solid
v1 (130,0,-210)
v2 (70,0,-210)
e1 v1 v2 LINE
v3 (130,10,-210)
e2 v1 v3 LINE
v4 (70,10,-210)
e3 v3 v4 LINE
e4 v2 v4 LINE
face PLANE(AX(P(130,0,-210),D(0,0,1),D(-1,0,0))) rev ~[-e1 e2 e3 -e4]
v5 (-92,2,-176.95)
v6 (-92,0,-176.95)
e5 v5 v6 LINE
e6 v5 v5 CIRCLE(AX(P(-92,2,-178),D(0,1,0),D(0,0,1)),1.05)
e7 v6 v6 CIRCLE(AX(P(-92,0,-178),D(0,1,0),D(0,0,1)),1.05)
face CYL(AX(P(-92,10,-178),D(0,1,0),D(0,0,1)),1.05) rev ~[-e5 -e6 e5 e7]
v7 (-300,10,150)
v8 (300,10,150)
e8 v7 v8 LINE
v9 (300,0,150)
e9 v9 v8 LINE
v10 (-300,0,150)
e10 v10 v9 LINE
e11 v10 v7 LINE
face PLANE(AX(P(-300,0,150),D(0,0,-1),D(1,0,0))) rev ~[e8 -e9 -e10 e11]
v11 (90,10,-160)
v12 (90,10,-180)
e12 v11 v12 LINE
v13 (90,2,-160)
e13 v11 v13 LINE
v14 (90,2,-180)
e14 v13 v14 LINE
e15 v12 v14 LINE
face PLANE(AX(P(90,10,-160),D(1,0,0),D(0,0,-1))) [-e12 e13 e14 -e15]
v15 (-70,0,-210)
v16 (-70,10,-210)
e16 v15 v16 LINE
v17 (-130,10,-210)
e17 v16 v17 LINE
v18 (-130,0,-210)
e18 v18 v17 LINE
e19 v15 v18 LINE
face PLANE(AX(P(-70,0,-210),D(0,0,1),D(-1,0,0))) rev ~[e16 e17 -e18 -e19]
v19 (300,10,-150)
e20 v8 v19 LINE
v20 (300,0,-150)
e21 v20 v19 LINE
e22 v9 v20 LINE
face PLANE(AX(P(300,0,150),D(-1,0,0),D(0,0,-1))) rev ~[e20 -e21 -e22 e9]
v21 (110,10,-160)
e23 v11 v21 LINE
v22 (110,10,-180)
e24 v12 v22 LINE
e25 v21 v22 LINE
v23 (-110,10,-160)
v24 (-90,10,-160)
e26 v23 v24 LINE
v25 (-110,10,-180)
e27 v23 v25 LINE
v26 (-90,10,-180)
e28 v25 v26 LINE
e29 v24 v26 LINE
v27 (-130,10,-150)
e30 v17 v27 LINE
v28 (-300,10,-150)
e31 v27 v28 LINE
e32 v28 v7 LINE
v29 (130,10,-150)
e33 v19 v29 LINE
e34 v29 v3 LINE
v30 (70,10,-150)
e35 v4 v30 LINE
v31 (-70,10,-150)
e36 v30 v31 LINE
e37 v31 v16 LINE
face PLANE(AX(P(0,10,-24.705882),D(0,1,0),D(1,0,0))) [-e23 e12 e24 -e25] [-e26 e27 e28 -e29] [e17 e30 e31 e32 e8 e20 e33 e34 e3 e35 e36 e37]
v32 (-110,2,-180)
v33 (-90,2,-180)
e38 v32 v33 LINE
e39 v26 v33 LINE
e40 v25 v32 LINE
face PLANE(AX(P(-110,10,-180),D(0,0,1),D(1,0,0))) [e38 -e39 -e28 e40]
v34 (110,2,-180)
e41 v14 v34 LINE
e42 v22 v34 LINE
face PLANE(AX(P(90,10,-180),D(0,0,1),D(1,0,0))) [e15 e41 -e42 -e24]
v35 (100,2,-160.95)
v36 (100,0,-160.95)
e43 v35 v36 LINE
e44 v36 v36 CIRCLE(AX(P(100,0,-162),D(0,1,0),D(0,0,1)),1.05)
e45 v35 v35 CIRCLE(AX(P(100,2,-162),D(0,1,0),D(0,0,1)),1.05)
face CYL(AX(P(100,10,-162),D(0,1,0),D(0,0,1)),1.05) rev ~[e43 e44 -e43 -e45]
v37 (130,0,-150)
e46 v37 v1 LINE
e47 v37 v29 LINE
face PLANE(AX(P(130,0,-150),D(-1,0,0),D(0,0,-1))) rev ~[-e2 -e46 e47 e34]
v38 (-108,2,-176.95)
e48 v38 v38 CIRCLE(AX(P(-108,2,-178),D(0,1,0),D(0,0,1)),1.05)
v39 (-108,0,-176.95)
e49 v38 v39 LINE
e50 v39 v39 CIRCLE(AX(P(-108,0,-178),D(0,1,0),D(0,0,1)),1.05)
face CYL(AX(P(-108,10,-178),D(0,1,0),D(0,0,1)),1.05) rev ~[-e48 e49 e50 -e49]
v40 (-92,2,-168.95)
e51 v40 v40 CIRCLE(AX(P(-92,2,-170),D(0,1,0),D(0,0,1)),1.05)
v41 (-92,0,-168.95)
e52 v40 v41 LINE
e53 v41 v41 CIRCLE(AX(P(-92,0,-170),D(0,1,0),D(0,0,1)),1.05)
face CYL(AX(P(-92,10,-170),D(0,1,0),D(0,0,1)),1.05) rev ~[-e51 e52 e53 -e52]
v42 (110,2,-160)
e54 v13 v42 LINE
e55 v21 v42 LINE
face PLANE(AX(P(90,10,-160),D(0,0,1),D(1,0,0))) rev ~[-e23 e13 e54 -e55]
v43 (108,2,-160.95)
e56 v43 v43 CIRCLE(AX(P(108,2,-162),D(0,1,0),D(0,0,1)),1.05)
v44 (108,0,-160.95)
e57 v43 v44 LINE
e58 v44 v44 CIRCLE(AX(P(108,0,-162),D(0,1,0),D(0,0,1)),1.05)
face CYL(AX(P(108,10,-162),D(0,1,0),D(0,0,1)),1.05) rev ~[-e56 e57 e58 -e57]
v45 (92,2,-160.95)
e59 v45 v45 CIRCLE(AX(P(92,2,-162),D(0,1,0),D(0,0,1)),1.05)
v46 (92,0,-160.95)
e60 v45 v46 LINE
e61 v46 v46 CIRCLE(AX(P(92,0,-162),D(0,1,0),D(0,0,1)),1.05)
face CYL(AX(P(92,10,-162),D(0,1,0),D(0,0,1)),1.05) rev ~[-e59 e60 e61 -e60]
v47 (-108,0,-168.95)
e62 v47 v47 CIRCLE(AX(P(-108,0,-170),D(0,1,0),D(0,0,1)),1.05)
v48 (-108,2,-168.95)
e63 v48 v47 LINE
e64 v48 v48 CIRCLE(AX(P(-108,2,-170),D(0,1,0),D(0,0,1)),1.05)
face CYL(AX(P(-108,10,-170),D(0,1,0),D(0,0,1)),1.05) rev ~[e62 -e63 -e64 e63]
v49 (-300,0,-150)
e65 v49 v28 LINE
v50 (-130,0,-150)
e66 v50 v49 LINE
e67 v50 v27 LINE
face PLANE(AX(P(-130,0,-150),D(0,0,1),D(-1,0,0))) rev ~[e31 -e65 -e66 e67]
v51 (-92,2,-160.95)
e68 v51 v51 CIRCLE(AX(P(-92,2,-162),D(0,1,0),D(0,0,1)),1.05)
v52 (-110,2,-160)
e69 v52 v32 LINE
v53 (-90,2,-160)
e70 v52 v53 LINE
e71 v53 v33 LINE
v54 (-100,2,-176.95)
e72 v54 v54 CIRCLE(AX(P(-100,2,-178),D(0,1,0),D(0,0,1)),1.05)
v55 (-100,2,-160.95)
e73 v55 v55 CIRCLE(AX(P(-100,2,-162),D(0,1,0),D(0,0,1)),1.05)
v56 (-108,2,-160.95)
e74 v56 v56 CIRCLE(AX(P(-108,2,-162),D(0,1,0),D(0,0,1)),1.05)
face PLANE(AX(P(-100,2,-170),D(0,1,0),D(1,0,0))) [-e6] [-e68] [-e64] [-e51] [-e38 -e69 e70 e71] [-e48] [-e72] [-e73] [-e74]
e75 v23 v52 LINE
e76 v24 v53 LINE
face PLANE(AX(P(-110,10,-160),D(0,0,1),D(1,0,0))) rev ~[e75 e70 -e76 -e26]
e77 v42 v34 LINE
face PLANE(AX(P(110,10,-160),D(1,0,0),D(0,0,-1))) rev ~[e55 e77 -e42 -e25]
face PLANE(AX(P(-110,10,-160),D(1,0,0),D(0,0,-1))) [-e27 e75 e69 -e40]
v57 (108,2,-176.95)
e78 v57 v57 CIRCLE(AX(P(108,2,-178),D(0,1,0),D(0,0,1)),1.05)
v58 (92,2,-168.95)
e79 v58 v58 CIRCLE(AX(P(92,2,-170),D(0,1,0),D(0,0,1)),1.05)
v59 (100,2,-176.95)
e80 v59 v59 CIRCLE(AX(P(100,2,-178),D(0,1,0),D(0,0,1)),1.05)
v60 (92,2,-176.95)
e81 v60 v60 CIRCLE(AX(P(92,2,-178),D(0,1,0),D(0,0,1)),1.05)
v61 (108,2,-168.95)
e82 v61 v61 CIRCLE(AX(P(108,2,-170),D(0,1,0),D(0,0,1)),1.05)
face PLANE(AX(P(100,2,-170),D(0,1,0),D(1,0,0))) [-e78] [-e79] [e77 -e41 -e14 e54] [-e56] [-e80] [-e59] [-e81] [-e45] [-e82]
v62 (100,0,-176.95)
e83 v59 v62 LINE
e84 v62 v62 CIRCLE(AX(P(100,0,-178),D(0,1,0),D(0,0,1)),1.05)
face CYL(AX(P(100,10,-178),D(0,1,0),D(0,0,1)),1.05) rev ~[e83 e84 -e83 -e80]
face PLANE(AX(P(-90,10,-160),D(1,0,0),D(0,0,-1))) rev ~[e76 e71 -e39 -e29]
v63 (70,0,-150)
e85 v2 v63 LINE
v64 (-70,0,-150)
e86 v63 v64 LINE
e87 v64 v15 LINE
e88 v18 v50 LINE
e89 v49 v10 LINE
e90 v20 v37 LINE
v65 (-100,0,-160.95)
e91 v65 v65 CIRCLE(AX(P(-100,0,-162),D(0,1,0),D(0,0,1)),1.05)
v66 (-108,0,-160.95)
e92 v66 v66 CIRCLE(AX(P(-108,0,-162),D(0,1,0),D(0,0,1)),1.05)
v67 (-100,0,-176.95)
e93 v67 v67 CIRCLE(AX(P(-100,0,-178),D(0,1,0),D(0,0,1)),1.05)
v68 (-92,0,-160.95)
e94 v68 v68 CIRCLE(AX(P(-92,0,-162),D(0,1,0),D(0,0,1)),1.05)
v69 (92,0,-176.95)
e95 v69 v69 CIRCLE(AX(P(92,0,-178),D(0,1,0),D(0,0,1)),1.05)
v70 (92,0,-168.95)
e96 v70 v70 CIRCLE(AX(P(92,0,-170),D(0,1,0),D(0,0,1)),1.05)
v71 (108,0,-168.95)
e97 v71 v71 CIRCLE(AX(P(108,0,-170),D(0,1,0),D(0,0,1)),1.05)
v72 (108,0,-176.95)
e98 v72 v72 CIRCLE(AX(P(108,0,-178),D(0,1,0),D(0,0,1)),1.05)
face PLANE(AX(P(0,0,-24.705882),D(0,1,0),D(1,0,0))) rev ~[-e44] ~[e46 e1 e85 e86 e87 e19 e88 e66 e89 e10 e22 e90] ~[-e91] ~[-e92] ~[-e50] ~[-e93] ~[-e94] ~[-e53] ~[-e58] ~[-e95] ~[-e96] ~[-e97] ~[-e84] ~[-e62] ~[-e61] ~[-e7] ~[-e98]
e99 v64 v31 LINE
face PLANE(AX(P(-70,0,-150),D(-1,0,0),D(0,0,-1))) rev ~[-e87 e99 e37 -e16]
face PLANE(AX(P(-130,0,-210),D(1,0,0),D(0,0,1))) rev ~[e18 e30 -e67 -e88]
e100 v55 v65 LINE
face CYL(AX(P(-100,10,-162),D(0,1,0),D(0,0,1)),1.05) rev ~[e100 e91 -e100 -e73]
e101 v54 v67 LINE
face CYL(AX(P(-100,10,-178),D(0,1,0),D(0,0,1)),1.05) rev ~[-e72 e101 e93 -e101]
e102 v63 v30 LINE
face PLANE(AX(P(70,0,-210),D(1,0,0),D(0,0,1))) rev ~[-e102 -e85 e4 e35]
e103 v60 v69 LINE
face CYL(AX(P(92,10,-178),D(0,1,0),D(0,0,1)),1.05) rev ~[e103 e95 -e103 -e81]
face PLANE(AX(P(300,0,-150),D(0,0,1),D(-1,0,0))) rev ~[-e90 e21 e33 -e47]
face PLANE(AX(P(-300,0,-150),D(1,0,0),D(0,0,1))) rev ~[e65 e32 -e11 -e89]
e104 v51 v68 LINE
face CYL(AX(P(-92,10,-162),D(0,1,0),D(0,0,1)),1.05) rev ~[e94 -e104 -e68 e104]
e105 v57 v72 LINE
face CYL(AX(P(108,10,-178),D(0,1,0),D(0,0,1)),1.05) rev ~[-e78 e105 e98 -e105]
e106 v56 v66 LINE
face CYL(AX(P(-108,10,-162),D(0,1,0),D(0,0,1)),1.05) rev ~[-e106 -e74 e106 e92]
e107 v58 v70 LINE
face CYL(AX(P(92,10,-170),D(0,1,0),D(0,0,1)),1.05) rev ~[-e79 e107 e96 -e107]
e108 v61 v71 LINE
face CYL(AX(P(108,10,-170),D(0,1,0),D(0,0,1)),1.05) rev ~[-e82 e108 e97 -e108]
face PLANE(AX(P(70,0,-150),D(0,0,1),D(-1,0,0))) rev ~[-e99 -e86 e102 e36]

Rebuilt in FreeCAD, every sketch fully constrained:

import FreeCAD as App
import Part
import Sketcher

V = App.Vector
Q = App.Units.Quantity


def add_polygon(sketch, points):
    """Adds a closed chain of lines whose ends are joined by coincident constraints."""
    first, n = sketch.GeometryCount, len(points)
    for a, b in zip(points, points[1:] + points[:1]):
        sketch.addGeometry(Part.LineSegment(App.Vector(*a, 0), App.Vector(*b, 0)), False)
    for i in range(n):
        sketch.addConstraint(Sketcher.Constraint("Coincident", first + i, 2, first + (i + 1) % n, 1))

doc = App.newDocument("Part")
body = doc.addObject("PartDesign::Body", "Body")

sketch1 = body.newObject("Sketcher::SketchObject", "Sketch")
sketch1.AttachmentSupport = (doc.getObject("XZ_Plane"), [""])
sketch1.MapMode = "FlatFace"
add_polygon(sketch1, [(-300, 150), (300, 150), (300, -150), (130, -150), (130, -210), (70, -210), (70, -150), (-70, -150), (-70, -210), (-130, -210), (-130, -150), (-300, -150)])
sketch1.addConstraint([
    Sketcher.Constraint("Horizontal", 0),
    Sketcher.Constraint("Vertical", 1),
    Sketcher.Constraint("Horizontal", 2),
    Sketcher.Constraint("Vertical", 3),
    Sketcher.Constraint("Horizontal", 4),
    Sketcher.Constraint("Vertical", 5),
    Sketcher.Constraint("Horizontal", 6),
    Sketcher.Constraint("Vertical", 7),
    Sketcher.Constraint("Horizontal", 8),
    Sketcher.Constraint("Vertical", 9),
    Sketcher.Constraint("Horizontal", 10),
    Sketcher.Constraint("Vertical", 11),
    Sketcher.Constraint("Symmetric", 0, 2, 10, 2, -1, 1),
    Sketcher.Constraint("Symmetric", 4, 2, 7, 2, -2),
    Sketcher.Constraint("Symmetric", 2, 2, 9, 2, -2),
    Sketcher.Constraint("Horizontal", 2, 2, 5, 2),
    Sketcher.Constraint("Equal", 8, 3),
    Sketcher.Constraint("DistanceX", 0, 1, 0, 2, Q("600 mm")),
    Sketcher.Constraint("DistanceX", 2, 2, 2, 1, Q("170 mm")),
    Sketcher.Constraint("DistanceX", 4, 2, 4, 1, Q("60 mm")),
    Sketcher.Constraint("DistanceY", 1, 2, 1, 1, Q("300 mm")),
])
pad1 = body.newObject("PartDesign::Pad", "Pad")
pad1.Profile = sketch1
pad1.Length = 10
pad1.Reversed = True

sketch2 = body.newObject("Sketcher::SketchObject", "Sketch001")
sketch2.AttachmentSupport = (doc.getObject("XZ_Plane"), [""])
sketch2.MapMode = "FlatFace"
sketch2.AttachmentOffset = App.Placement(V(0, 0, -10), App.Rotation())
add_polygon(sketch2, [(-110, -180), (-110, -160), (-90, -160), (-90, -180)])
sketch2.addGeometry(Part.Circle(V(-108, -162, 0), V(0, 0, 1), 1.05), False)
sketch2.addGeometry(Part.Circle(V(-100, -162, 0), V(0, 0, 1), 1.05), False)
sketch2.addGeometry(Part.Circle(V(-92, -162, 0), V(0, 0, 1), 1.05), False)
sketch2.addGeometry(Part.Circle(V(-108, -170, 0), V(0, 0, 1), 1.05), False)
sketch2.addGeometry(Part.Circle(V(-108, -178, 0), V(0, 0, 1), 1.05), False)
sketch2.addGeometry(Part.Circle(V(-92, -170, 0), V(0, 0, 1), 1.05), False)
sketch2.addGeometry(Part.Circle(V(-100, -178, 0), V(0, 0, 1), 1.05), False)
sketch2.addGeometry(Part.Circle(V(-92, -178, 0), V(0, 0, 1), 1.05), False)
add_polygon(sketch2, [(90, -180), (90, -160), (110, -160), (110, -180)])
sketch2.addGeometry(Part.Circle(V(92, -162, 0), V(0, 0, 1), 1.05), False)
sketch2.addGeometry(Part.Circle(V(100, -162, 0), V(0, 0, 1), 1.05), False)
sketch2.addGeometry(Part.Circle(V(108, -162, 0), V(0, 0, 1), 1.05), False)
sketch2.addGeometry(Part.Circle(V(92, -170, 0), V(0, 0, 1), 1.05), False)
sketch2.addGeometry(Part.Circle(V(92, -178, 0), V(0, 0, 1), 1.05), False)
sketch2.addGeometry(Part.Circle(V(108, -170, 0), V(0, 0, 1), 1.05), False)
sketch2.addGeometry(Part.Circle(V(100, -178, 0), V(0, 0, 1), 1.05), False)
sketch2.addGeometry(Part.Circle(V(108, -178, 0), V(0, 0, 1), 1.05), False)
sketch2.addConstraint([
    Sketcher.Constraint("Vertical", 0),
    Sketcher.Constraint("Horizontal", 1),
    Sketcher.Constraint("Vertical", 2),
    Sketcher.Constraint("Horizontal", 3),
    Sketcher.Constraint("Vertical", 12),
    Sketcher.Constraint("Horizontal", 13),
    Sketcher.Constraint("Vertical", 14),
    Sketcher.Constraint("Horizontal", 15),
    Sketcher.Constraint("Equal", 4, 5),
    Sketcher.Constraint("Equal", 5, 6),
    Sketcher.Constraint("Equal", 6, 7),
    Sketcher.Constraint("Equal", 7, 8),
    Sketcher.Constraint("Equal", 8, 9),
    Sketcher.Constraint("Equal", 9, 10),
    Sketcher.Constraint("Equal", 10, 11),
    Sketcher.Constraint("Equal", 11, 16),
    Sketcher.Constraint("Equal", 16, 17),
    Sketcher.Constraint("Equal", 17, 18),
    Sketcher.Constraint("Equal", 18, 19),
    Sketcher.Constraint("Equal", 19, 20),
    Sketcher.Constraint("Equal", 20, 21),
    Sketcher.Constraint("Equal", 21, 22),
    Sketcher.Constraint("Equal", 22, 23),
    Sketcher.Constraint("Symmetric", 6, 3, 16, 3, -2),
    Sketcher.Constraint("Symmetric", 5, 3, 17, 3, -2),
    Sketcher.Constraint("Symmetric", 4, 3, 18, 3, -2),
    Sketcher.Constraint("Symmetric", 9, 3, 19, 3, -2),
    Sketcher.Constraint("Symmetric", 11, 3, 20, 3, -2),
    Sketcher.Constraint("Symmetric", 7, 3, 21, 3, -2),
    Sketcher.Constraint("Symmetric", 10, 3, 22, 3, -2),
    Sketcher.Constraint("Symmetric", 8, 3, 23, 3, -2),
    Sketcher.Constraint("Symmetric", 1, 2, 12, 2, -2),
    Sketcher.Constraint("Symmetric", 3, 2, 14, 2, -2),
    Sketcher.Constraint("Horizontal", 4, 3, 5, 3),
    Sketcher.Constraint("Horizontal", 5, 3, 6, 3),
    Sketcher.Constraint("Horizontal", 7, 3, 9, 3),
    Sketcher.Constraint("Horizontal", 8, 3, 10, 3),
    Sketcher.Constraint("Horizontal", 10, 3, 11, 3),
    Sketcher.Constraint("Vertical", 4, 3, 7, 3),
    Sketcher.Constraint("Vertical", 7, 3, 8, 3),
    Sketcher.Constraint("Vertical", 6, 3, 9, 3),
    Sketcher.Constraint("Vertical", 5, 3, 10, 3),
    Sketcher.Constraint("Vertical", 9, 3, 11, 3),
    Sketcher.Constraint("Equal", 15, 0),
    Sketcher.Constraint("Diameter", 4, Q("2.1 mm")),
    Sketcher.Constraint("DistanceX", 1, 1, 1, 2, Q("20 mm")),
    Sketcher.Constraint("DistanceX", 4, 3, -1, 1, Q("108 mm")),
    Sketcher.Constraint("DistanceY", 4, 3, -1, 1, Q("162 mm")),
    Sketcher.Constraint("DistanceX", 5, 3, -1, 1, Q("100 mm")),
    Sketcher.Constraint("DistanceX", 6, 3, -1, 1, Q("92 mm")),
    Sketcher.Constraint("DistanceY", 7, 3, -1, 1, Q("170 mm")),
    Sketcher.Constraint("DistanceY", 8, 3, -1, 1, Q("178 mm")),
    Sketcher.Constraint("DistanceX", 0, 2, -1, 1, Q("110 mm")),
    Sketcher.Constraint("DistanceY", 0, 2, -1, 1, Q("160 mm")),
])
pocket1 = body.newObject("PartDesign::Pocket", "Pocket")
pocket1.Profile = sketch2
pocket1.Length = 8
pocket1.Reversed = True

sketch3 = body.newObject("Sketcher::SketchObject", "Sketch002")
sketch3.AttachmentSupport = (doc.getObject("XZ_Plane"), [""])
sketch3.MapMode = "FlatFace"
sketch3.AttachmentOffset = App.Placement(V(0, 0, -10), App.Rotation())
sketch3.addGeometry([
    Part.Circle(V(-92, -170, 0), V(0, 0, 1), 1.05),
    Part.Circle(V(-100, -178, 0), V(0, 0, 1), 1.05),
    Part.Circle(V(-108, -170, 0), V(0, 0, 1), 1.05),
    Part.Circle(V(-100, -162, 0), V(0, 0, 1), 1.05),
    Part.Circle(V(108, -170, 0), V(0, 0, 1), 1.05),
    Part.Circle(V(100, -178, 0), V(0, 0, 1), 1.05),
    Part.Circle(V(92, -170, 0), V(0, 0, 1), 1.05),
    Part.Circle(V(100, -162, 0), V(0, 0, 1), 1.05),
    Part.Circle(V(-108, -178, 0), V(0, 0, 1), 1.05),
    Part.Circle(V(-92, -178, 0), V(0, 0, 1), 1.05),
    Part.Circle(V(-92, -162, 0), V(0, 0, 1), 1.05),
    Part.Circle(V(-108, -162, 0), V(0, 0, 1), 1.05),
    Part.Circle(V(92, -178, 0), V(0, 0, 1), 1.05),
    Part.Circle(V(108, -178, 0), V(0, 0, 1), 1.05),
    Part.Circle(V(108, -162, 0), V(0, 0, 1), 1.05),
    Part.Circle(V(92, -162, 0), V(0, 0, 1), 1.05),
], False)
sketch3.addConstraint([
    Sketcher.Constraint("Equal", 0, 1),
    Sketcher.Constraint("Equal", 1, 2),
    Sketcher.Constraint("Equal", 2, 3),
    Sketcher.Constraint("Equal", 3, 4),
    Sketcher.Constraint("Equal", 4, 5),
    Sketcher.Constraint("Equal", 5, 6),
    Sketcher.Constraint("Equal", 6, 7),
    Sketcher.Constraint("Equal", 7, 8),
    Sketcher.Constraint("Equal", 8, 9),
    Sketcher.Constraint("Equal", 9, 10),
    Sketcher.Constraint("Equal", 10, 11),
    Sketcher.Constraint("Equal", 11, 12),
    Sketcher.Constraint("Equal", 12, 13),
    Sketcher.Constraint("Equal", 13, 14),
    Sketcher.Constraint("Equal", 14, 15),
    Sketcher.Constraint("Symmetric", 2, 3, 4, 3, -2),
    Sketcher.Constraint("Symmetric", 1, 3, 5, 3, -2),
    Sketcher.Constraint("Symmetric", 0, 3, 6, 3, -2),
    Sketcher.Constraint("Symmetric", 3, 3, 7, 3, -2),
    Sketcher.Constraint("Symmetric", 9, 3, 12, 3, -2),
    Sketcher.Constraint("Symmetric", 8, 3, 13, 3, -2),
    Sketcher.Constraint("Symmetric", 11, 3, 14, 3, -2),
    Sketcher.Constraint("Symmetric", 10, 3, 15, 3, -2),
    Sketcher.Constraint("Horizontal", 0, 3, 2, 3),
    Sketcher.Constraint("Horizontal", 5, 3, 8, 3),
    Sketcher.Constraint("Horizontal", 8, 3, 9, 3),
    Sketcher.Constraint("Horizontal", 7, 3, 10, 3),
    Sketcher.Constraint("Horizontal", 10, 3, 11, 3),
    Sketcher.Constraint("Vertical", 1, 3, 3, 3),
    Sketcher.Constraint("Vertical", 2, 3, 8, 3),
    Sketcher.Constraint("Vertical", 0, 3, 9, 3),
    Sketcher.Constraint("Vertical", 9, 3, 10, 3),
    Sketcher.Constraint("Vertical", 8, 3, 11, 3),
    Sketcher.Constraint("Diameter", 0, Q("2.1 mm")),
    Sketcher.Constraint("DistanceX", 0, 3, -1, 1, Q("92 mm")),
    Sketcher.Constraint("DistanceY", 0, 3, -1, 1, Q("170 mm")),
    Sketcher.Constraint("DistanceX", 1, 3, -1, 1, Q("100 mm")),
    Sketcher.Constraint("DistanceY", 1, 3, -1, 1, Q("178 mm")),
    Sketcher.Constraint("DistanceX", 2, 3, -1, 1, Q("108 mm")),
    Sketcher.Constraint("DistanceY", 3, 3, -1, 1, Q("162 mm")),
])
pocket2 = body.newObject("PartDesign::Pocket", "Pocket001")
pocket2.Profile = sketch3
pocket2.Type = "ThroughAll"
pocket2.Reversed = True

doc.recompute()
